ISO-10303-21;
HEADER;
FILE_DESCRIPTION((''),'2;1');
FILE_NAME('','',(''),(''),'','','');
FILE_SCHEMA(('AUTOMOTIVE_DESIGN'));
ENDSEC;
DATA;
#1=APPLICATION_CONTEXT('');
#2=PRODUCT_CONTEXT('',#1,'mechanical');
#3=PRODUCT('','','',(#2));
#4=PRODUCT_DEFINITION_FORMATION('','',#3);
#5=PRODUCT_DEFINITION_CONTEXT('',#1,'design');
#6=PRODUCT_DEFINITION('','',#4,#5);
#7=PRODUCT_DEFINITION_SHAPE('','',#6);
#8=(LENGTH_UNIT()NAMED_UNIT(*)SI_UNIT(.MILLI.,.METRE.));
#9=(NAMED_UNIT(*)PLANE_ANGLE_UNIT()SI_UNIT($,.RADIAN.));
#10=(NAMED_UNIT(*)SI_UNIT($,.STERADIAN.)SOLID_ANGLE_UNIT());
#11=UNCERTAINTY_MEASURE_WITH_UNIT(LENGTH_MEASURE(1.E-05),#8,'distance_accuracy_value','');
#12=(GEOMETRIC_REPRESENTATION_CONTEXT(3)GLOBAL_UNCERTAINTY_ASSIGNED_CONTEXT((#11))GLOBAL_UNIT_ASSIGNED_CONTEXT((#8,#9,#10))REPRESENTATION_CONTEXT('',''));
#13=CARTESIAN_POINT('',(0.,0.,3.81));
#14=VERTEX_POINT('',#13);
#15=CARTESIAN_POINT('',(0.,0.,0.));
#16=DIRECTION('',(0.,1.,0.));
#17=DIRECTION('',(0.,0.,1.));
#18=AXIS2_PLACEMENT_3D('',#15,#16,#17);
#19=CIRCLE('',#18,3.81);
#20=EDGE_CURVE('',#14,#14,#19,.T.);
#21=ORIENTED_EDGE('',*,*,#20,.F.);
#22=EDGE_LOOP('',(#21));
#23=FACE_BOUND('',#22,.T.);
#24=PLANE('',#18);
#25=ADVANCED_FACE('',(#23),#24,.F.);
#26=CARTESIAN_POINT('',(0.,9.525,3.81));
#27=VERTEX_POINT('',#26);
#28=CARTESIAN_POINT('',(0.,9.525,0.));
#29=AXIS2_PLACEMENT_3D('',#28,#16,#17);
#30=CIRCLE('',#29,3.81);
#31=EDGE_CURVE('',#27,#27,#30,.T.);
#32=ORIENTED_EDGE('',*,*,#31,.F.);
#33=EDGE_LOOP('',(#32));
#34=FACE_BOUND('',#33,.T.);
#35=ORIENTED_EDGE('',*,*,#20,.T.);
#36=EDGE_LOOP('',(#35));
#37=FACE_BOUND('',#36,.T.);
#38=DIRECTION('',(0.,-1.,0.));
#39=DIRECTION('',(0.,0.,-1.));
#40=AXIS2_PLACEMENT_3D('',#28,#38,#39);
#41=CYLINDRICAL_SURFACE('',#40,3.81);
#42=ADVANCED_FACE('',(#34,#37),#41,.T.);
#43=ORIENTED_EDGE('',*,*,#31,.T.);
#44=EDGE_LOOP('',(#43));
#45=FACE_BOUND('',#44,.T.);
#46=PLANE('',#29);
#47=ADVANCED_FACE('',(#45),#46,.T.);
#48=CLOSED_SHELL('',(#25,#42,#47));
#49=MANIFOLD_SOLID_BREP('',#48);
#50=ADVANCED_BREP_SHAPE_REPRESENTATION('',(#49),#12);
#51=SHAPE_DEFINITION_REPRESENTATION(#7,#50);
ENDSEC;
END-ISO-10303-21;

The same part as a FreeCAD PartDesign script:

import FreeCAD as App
import Part
import Sketcher
from FreeCAD import Vector
Q = App.Units.Quantity

doc = App.newDocument("Part")
body = doc.addObject("PartDesign::Body", "Body")

# Sketch on XZ plane
sketch1 = body.newObject("Sketcher::SketchObject", "Sketch")
sketch1.AttachmentSupport = (doc.getObject("XZ_Plane"), [""])
sketch1.MapMode = "FlatFace"
sketch1.addGeometry(Part.Circle(Vector(0, 0, 0), Vector(0, 0, 1), 3.81), False)
sketch1.addConstraint(Sketcher.Constraint("Coincident", 0, 3, -1, 1))
sketch1.addConstraint(Sketcher.Constraint("Diameter", 0, Q("0.3 in")))
pad1 = body.newObject("PartDesign::Pad", "Pad")
pad1.Profile = sketch1
pad1.Length = Q("0.375 in")
pad1.Reversed = True

doc.recompute()
